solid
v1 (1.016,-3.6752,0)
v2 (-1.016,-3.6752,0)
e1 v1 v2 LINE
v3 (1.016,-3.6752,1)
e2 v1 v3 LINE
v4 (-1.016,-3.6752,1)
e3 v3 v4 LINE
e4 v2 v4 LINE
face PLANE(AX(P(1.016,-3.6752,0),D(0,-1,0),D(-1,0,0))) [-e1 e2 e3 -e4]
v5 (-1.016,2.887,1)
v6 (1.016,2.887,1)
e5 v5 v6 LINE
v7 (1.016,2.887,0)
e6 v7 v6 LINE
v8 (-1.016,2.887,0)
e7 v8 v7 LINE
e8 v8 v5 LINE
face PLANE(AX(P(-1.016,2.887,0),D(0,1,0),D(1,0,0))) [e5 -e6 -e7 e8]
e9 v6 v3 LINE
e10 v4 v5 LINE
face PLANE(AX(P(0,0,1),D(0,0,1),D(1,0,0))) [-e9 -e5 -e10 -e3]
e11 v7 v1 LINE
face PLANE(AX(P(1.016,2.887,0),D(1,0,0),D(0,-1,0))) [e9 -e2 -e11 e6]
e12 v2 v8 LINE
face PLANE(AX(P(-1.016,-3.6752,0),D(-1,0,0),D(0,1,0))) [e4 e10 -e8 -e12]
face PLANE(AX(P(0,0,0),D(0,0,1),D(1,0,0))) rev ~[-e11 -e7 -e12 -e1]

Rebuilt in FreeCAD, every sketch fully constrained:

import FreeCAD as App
import Part
import Sketcher

V = App.Vector
Q = App.Units.Quantity


def add_polygon(sketch, points):
    """Adds a closed chain of lines whose ends are joined by coincident constraints."""
    first, n = sketch.GeometryCount, len(points)
    for a, b in zip(points, points[1:] + points[:1]):
        sketch.addGeometry(Part.LineSegment(App.Vector(*a, 0), App.Vector(*b, 0)), False)
    for i in range(n):
        sketch.addConstraint(Sketcher.Constraint("Coincident", first + i, 2, first + (i + 1) % n, 1))

doc = App.newDocument("Part")
body = doc.addObject("PartDesign::Body", "Body")

# Sketch on XY plane
sketch1 = doc.addObject("Sketcher::SketchObject", "Sketch")
body.addObject(sketch1)
sketch1.AttachmentSupport = (doc.XY_Plane, [""])
sketch1.MapMode = "FlatFace"
add_polygon(sketch1, [(1, 2.9), (-1, 2.9), (-1, -3.7), (1, -3.7)])  # lines 0-3
sketch1.addConstraint(Sketcher.Constraint("Horizontal", 0))
sketch1.addConstraint(Sketcher.Constraint("Vertical", 1))
sketch1.addConstraint(Sketcher.Constraint("Horizontal", 2))
sketch1.addConstraint(Sketcher.Constraint("Vertical", 3))
sketch1.addConstraint(Sketcher.Constraint("DistanceX", 0, 2, 0, 1, Q("2.032 mm")))
sketch1.addConstraint(Sketcher.Constraint("DistanceY", 1, 2, 1, 1, Q("6.5622 mm")))
sketch1.addConstraint(Sketcher.Constraint("DistanceX", 0, 2, -1, 1, Q("1.016 mm")))
sketch1.addConstraint(Sketcher.Constraint("DistanceY", -1, 1, 0, 2, Q("2.887 mm")))
pad1 = doc.addObject("PartDesign::Pad", "Pad")
body.addObject(pad1)
pad1.Profile = sketch1
pad1.Length = 1

doc.recompute()
